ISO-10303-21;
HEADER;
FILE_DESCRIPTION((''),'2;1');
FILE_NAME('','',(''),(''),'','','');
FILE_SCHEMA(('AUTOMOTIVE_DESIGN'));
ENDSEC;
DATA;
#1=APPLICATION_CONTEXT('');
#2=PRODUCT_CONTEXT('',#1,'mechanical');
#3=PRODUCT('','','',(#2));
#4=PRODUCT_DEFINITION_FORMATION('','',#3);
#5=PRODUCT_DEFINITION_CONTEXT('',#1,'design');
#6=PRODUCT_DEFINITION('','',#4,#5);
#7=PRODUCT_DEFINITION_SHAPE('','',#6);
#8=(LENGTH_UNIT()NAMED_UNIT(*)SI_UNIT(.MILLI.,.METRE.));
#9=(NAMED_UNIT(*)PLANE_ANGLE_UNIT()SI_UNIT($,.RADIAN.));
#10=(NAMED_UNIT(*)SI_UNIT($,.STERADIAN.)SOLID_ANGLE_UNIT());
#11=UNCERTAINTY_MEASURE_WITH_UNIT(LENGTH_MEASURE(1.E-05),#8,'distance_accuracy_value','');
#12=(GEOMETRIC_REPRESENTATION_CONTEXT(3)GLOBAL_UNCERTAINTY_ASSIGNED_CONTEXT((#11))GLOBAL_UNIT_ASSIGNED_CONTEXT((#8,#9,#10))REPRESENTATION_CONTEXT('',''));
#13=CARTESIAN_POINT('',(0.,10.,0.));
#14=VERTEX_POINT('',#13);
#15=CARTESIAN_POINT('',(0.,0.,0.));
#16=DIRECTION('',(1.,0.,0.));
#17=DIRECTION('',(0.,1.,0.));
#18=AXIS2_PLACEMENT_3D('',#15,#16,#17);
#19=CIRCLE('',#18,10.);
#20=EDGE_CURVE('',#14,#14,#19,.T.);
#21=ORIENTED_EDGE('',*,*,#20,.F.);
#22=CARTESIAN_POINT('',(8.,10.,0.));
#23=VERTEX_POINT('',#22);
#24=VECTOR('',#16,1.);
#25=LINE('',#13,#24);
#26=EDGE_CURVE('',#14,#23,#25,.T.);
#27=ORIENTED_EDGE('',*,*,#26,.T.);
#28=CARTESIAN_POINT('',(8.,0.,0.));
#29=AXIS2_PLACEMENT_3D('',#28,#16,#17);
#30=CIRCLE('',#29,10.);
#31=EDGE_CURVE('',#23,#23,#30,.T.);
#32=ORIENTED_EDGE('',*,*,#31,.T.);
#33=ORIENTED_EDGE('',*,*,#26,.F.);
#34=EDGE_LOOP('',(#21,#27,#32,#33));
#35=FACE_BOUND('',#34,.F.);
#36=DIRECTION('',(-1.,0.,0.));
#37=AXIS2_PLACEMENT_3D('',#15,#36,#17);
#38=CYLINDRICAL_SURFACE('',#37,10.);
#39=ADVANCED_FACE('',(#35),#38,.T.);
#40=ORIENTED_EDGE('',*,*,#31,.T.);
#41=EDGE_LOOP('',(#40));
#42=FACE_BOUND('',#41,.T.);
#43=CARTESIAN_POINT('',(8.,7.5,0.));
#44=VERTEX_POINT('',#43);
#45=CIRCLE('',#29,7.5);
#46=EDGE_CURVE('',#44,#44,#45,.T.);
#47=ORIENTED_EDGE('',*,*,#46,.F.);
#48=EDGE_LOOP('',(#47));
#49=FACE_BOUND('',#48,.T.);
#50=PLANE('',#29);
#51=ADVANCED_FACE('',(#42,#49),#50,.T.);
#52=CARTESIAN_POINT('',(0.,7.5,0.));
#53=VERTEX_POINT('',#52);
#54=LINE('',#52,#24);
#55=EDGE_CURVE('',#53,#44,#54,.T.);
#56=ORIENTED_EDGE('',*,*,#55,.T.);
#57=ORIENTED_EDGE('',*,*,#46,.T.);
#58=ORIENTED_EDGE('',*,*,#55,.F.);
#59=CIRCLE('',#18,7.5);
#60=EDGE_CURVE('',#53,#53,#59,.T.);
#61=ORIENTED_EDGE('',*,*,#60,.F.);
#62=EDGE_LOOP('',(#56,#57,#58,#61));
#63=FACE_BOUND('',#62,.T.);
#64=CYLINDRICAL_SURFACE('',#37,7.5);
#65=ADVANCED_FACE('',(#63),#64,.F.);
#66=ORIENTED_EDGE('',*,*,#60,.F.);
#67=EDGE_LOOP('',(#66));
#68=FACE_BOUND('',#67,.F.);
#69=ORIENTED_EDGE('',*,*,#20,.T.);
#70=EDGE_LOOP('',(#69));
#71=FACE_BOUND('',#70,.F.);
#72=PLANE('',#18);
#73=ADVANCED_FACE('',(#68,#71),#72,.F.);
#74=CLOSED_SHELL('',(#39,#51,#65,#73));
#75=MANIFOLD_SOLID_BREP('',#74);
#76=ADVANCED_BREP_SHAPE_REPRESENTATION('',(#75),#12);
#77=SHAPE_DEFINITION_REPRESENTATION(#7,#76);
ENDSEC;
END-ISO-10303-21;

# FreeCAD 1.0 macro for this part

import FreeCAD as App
import Part
import Sketcher

V = App.Vector

doc = App.newDocument("Part")
params = doc.addObject("Spreadsheet::Sheet", "Params")
for row, (alias, value) in enumerate([
    ("sketch1_diameter", "20 mm"),
    ("sketch1_diameter2", "15 mm"),
    ("pad1_length", "8 mm"),
], start=1):
    params.set(f"A{row}", alias)
    params.set(f"B{row}", "=" + value)
    params.setAlias(f"B{row}", alias)

body = doc.addObject("PartDesign::Body", "Body")

sketch1 = doc.addObject("Sketcher::SketchObject", "Sketch")
body.addObject(sketch1)
sketch1.AttachmentSupport = (doc.YZ_Plane, [""])
sketch1.MapMode = "FlatFace"
sketch1.addGeometry([
    Part.Circle(V(0, 0, 0), V(0, 0, 1), 10),
    Part.Circle(V(0, 0, 0), V(0, 0, 1), 7.5),
], False)
sketch1.addConstraint([
    Sketcher.Constraint("Coincident", 0, 3, -1, 1),
    Sketcher.Constraint("Coincident", 1, 3, -1, 1),
    Sketcher.Constraint("Diameter", 0, 20.0),
    Sketcher.Constraint("Diameter", 1, 15.0),
])
sketch1.setExpression("Constraints[2]", "Params.sketch1_diameter")
sketch1.setExpression("Constraints[3]", "Params.sketch1_diameter2")
pad1 = doc.addObject("PartDesign::Pad", "Pad")
body.addObject(pad1)
pad1.Profile = sketch1
pad1.setExpression("Length", "Params.pad1_length")

doc.recompute()
